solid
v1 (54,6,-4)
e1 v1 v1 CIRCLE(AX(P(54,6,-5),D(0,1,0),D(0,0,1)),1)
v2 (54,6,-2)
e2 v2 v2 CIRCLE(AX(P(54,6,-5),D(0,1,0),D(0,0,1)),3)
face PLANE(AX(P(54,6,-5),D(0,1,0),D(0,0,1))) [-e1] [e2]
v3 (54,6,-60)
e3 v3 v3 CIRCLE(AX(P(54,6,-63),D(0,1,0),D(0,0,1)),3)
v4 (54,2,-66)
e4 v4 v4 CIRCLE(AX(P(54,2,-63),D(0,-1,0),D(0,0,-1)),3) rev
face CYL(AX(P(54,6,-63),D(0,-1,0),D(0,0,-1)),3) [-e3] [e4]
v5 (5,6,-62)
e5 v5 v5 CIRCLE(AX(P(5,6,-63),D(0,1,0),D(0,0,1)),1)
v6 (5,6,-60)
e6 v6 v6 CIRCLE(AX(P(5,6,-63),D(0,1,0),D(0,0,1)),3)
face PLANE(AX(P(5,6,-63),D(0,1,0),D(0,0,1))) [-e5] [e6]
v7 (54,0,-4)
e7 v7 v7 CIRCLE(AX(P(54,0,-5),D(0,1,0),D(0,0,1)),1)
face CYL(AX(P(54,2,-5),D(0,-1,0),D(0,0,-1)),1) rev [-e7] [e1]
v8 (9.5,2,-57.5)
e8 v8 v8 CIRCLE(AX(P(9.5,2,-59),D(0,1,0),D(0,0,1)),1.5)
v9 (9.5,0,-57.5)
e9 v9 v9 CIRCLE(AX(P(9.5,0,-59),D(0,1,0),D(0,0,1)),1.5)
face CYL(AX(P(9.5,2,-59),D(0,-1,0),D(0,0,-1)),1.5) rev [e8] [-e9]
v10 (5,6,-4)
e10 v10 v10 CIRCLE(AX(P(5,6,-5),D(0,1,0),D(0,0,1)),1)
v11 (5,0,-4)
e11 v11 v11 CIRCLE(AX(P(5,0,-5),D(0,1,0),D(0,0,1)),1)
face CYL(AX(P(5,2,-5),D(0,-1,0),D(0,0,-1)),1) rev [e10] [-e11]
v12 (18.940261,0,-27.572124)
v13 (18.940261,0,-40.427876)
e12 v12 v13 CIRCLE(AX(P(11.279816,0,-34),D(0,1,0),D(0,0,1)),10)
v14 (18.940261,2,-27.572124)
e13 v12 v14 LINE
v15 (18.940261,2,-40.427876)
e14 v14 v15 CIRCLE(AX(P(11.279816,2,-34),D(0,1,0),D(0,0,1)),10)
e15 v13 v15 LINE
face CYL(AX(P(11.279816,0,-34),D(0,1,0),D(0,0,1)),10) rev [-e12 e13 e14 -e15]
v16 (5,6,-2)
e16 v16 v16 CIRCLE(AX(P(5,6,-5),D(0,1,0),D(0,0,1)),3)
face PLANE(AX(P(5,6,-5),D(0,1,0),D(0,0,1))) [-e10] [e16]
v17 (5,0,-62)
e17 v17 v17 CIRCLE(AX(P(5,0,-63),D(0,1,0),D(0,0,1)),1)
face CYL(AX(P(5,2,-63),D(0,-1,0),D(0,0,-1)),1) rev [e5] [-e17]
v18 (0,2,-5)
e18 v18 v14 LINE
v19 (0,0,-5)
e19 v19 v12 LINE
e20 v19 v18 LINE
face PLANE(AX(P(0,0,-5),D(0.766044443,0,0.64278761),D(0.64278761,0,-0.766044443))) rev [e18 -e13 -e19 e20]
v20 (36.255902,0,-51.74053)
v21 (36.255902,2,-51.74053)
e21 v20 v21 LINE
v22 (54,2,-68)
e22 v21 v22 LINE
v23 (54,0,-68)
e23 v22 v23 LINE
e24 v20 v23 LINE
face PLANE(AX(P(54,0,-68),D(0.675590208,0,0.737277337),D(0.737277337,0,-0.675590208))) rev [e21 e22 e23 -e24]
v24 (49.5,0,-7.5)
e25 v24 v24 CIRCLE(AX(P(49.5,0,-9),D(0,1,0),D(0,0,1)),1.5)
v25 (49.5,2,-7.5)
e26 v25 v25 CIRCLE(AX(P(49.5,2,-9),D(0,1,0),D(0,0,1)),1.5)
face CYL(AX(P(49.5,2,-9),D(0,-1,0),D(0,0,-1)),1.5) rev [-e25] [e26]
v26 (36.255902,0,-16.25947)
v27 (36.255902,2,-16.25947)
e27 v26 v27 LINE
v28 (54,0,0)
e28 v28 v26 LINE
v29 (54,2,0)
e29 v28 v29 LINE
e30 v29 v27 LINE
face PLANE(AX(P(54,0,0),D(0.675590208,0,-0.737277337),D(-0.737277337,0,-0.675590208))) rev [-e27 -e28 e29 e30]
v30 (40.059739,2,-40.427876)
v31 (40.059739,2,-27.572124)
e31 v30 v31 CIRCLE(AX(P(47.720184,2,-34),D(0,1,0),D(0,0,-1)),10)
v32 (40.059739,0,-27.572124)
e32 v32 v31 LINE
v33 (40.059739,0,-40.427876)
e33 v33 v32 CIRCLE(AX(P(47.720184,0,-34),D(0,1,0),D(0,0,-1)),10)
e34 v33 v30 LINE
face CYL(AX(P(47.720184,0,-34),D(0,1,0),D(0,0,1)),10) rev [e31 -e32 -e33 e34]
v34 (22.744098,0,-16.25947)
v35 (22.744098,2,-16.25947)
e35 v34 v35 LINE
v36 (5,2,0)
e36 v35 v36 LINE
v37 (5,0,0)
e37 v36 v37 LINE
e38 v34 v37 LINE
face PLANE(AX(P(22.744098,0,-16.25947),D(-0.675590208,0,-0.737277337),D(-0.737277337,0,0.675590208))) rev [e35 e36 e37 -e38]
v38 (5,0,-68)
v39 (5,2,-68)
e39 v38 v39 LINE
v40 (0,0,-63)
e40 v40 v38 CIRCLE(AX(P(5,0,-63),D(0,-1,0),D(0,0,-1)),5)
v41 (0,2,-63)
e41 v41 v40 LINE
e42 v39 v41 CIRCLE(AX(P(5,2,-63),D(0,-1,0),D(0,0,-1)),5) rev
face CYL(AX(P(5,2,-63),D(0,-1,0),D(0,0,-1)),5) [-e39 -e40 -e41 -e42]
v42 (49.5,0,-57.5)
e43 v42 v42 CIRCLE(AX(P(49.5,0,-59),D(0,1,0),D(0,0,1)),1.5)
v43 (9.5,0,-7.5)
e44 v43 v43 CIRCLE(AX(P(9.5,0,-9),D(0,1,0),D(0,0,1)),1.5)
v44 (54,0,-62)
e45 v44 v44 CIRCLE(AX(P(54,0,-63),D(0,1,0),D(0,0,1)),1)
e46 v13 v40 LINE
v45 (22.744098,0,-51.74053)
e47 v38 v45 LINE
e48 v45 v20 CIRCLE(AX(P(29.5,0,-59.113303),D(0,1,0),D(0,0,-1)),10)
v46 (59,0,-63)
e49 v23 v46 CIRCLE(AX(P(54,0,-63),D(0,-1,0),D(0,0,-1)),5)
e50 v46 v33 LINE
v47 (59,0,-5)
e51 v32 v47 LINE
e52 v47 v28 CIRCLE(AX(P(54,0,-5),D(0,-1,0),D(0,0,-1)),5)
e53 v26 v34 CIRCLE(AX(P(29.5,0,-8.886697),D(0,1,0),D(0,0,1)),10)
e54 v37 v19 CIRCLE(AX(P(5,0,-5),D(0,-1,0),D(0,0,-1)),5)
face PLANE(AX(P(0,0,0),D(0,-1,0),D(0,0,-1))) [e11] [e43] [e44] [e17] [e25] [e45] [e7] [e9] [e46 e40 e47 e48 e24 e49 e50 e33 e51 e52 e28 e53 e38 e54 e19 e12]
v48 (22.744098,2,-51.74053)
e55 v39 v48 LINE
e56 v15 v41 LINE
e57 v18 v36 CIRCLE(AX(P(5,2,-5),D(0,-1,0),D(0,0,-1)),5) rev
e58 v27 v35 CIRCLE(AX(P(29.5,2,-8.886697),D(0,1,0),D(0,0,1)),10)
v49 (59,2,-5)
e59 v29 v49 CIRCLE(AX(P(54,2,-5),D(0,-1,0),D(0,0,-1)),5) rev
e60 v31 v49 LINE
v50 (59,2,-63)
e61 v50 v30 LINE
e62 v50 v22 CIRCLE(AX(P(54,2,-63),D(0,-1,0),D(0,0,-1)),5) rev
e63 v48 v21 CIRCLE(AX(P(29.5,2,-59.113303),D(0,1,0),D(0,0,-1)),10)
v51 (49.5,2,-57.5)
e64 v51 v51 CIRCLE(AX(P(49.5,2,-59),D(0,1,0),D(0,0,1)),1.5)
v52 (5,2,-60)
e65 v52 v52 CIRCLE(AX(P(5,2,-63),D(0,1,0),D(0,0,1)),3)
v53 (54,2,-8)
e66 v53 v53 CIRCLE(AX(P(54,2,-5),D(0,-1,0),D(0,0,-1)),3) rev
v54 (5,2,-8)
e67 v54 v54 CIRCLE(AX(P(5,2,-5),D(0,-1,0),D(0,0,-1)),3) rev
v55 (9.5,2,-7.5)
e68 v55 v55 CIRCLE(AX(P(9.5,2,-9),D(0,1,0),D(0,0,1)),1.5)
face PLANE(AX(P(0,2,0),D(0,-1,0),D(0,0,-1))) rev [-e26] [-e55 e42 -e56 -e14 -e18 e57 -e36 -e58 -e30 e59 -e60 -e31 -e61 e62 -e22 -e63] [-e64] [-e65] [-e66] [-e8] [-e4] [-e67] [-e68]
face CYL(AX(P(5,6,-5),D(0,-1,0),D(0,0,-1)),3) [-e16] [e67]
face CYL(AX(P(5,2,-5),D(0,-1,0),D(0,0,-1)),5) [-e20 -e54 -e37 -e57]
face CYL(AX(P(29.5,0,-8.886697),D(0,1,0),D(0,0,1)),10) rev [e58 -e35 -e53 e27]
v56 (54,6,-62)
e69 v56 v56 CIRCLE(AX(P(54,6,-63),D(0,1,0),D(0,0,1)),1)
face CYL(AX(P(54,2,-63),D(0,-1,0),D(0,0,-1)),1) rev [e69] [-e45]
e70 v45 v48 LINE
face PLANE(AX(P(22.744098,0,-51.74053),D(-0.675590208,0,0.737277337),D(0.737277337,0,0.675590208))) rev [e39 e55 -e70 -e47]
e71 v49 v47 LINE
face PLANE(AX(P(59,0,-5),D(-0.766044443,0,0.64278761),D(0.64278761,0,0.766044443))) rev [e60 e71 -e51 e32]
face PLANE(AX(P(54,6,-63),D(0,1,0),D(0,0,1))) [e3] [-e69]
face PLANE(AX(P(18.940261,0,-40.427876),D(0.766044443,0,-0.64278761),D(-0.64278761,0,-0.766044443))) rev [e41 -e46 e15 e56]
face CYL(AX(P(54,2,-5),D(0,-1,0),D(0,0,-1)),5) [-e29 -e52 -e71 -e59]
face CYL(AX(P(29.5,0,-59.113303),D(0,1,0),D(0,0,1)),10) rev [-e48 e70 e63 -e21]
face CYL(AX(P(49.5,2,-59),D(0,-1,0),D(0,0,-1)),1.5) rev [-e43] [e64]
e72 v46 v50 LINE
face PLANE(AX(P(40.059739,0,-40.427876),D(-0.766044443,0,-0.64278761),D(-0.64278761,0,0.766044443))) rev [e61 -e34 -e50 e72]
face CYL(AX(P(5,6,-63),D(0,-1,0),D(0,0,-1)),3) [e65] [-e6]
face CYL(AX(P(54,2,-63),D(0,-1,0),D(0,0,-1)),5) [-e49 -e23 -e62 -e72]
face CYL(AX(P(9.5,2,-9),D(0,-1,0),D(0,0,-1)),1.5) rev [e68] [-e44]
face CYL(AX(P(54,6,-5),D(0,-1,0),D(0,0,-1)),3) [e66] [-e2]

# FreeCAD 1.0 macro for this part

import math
import FreeCAD as App
import Part
import Sketcher
from FreeCAD import Vector
Q = App.Units.Quantity


def edges_at(feature, points):
    """Names of the edges that pass closest to the given points."""
    edges = feature.Shape.Edges
    near = lambda p: min(range(len(edges)), key=lambda i: edges[i].distToShape(Part.Vertex(*p))[0])
    return sorted({f"Edge{near(p) + 1}" for p in points})


def add_polygon(sketch, points):
    """Adds a closed chain of lines whose ends are joined by coincident constraints."""
    first, n = sketch.GeometryCount, len(points)
    for a, b in zip(points, points[1:] + points[:1]):
        sketch.addGeometry(Part.LineSegment(App.Vector(*a, 0), App.Vector(*b, 0)), False)
    for i in range(n):
        sketch.addConstraint(Sketcher.Constraint("Coincident", first + i, 2, first + (i + 1) % n, 1))

doc = App.newDocument("Part")
body = doc.addObject("PartDesign::Body", "Body")

sketch1 = body.newObject("Sketcher::SketchObject", "Sketch")
sketch1.AttachmentSupport = (doc.getObject("XZ_Plane"), [""])
sketch1.MapMode = "FlatFace"
add_polygon(sketch1, [(0, -68), (0, 0), (59, 0), (59, -68)])
sketch1.addGeometry(Part.Circle(Vector(5, -5, 0), Vector(0, 0, 1), 1), False)
sketch1.addGeometry(Part.Circle(Vector(9.5, -9, 0), Vector(0, 0, 1), 1.5), False)
sketch1.addGeometry(Part.Circle(Vector(54, -5, 0), Vector(0, 0, 1), 1), False)
sketch1.addGeometry(Part.Circle(Vector(49.5, -9, 0), Vector(0, 0, 1), 1.5), False)
sketch1.addGeometry(Part.Circle(Vector(9.5, -59, 0), Vector(0, 0, 1), 1.5), False)
sketch1.addGeometry(Part.Circle(Vector(5, -63, 0), Vector(0, 0, 1), 1), False)
sketch1.addGeometry(Part.Circle(Vector(49.5, -59, 0), Vector(0, 0, 1), 1.5), False)
sketch1.addGeometry(Part.Circle(Vector(54, -63, 0), Vector(0, 0, 1), 1), False)
sketch1.addConstraint(Sketcher.Constraint("Vertical", 0))
sketch1.addConstraint(Sketcher.Constraint("Horizontal", 1))
sketch1.addConstraint(Sketcher.Constraint("Vertical", 2))
sketch1.addConstraint(Sketcher.Constraint("Horizontal", 3))
sketch1.addConstraint(Sketcher.Constraint("Coincident", 0, 2, -1, 1))
sketch1.addConstraint(Sketcher.Constraint("Equal", 4, 6))
sketch1.addConstraint(Sketcher.Constraint("Equal", 5, 7))
sketch1.addConstraint(Sketcher.Constraint("Equal", 7, 8))
sketch1.addConstraint(Sketcher.Constraint("Equal", 6, 9))
sketch1.addConstraint(Sketcher.Constraint("Equal", 8, 10))
sketch1.addConstraint(Sketcher.Constraint("Equal", 9, 11))
sketch1.addConstraint(Sketcher.Constraint("Horizontal", 4, 3, 6, 3))
sketch1.addConstraint(Sketcher.Constraint("Horizontal", 5, 3, 7, 3))
sketch1.addConstraint(Sketcher.Constraint("Horizontal", 8, 3, 10, 3))
sketch1.addConstraint(Sketcher.Constraint("Horizontal", 9, 3, 11, 3))
sketch1.addConstraint(Sketcher.Constraint("Vertical", 5, 3, 8, 3))
sketch1.addConstraint(Sketcher.Constraint("Vertical", 4, 3, 9, 3))
sketch1.addConstraint(Sketcher.Constraint("Vertical", 7, 3, 10, 3))
sketch1.addConstraint(Sketcher.Constraint("Vertical", 6, 3, 11, 3))
sketch1.addConstraint(Sketcher.Constraint("Diameter", 4, Q("2 mm")))
sketch1.addConstraint(Sketcher.Constraint("Diameter", 5, Q("3 mm")))
sketch1.addConstraint(Sketcher.Constraint("DistanceX", 1, 1, 1, 2, Q("59 mm")))
sketch1.addConstraint(Sketcher.Constraint("DistanceY", 0, 1, 0, 2, Q("68 mm")))
sketch1.addConstraint(Sketcher.Constraint("DistanceX", -1, 1, 4, 3, Q("5 mm")))
sketch1.addConstraint(Sketcher.Constraint("DistanceY", 4, 3, -1, 1, Q("5 mm")))
sketch1.addConstraint(Sketcher.Constraint("DistanceY", 5, 3, -1, 1, Q("9 mm")))
sketch1.addConstraint(Sketcher.Constraint("DistanceX", -1, 1, 6, 3, Q("54 mm")))
sketch1.addConstraint(Sketcher.Constraint("DistanceY", 8, 3, -1, 1, Q("59 mm")))
sketch1.addConstraint(Sketcher.Constraint("DistanceY", 9, 3, -1, 1, Q("63 mm")))
sketch1.addConstraint(Sketcher.Constraint("DistanceX", 5, 3, 7, 3, Q("40 mm")))
sketch1.addConstraint(Sketcher.Constraint("DistanceX", -1, 1, 5, 3, Q("9.5 mm")))
pad1 = body.newObject("PartDesign::Pad", "Pad")
pad1.Profile = sketch1
pad1.Length = 2
pad1.Reversed = True
doc.recompute()

fillet = body.newObject("PartDesign::Fillet", "Fillet")
fillet.Base = (pad1, edges_at(pad1, [
    (0, 1, -68),
    (59, 1, -68),
    (59, 1, 0),
    (0, 1, 0),
]))
fillet.Radius = 5

sketch2 = body.newObject("Sketcher::SketchObject", "Sketch001")
sketch2.AttachmentSupport = (doc.getObject("XZ_Plane"), [""])
sketch2.MapMode = "FlatFace"
sketch2.AttachmentOffset = App.Placement(Vector(0, 0, -2), App.Rotation())
sketch2.addGeometry(Part.LineSegment(Vector(0, -5, 0), Vector(19, -28, 0)), False)
sketch2.addGeometry(Part.ArcOfCircle(Part.Circle(Vector(11, -34, 0), Vector(0, 0, 1), 10), math.radians(-40), math.radians(40)), False)
sketch2.addGeometry(Part.LineSegment(Vector(19, -40, 0), Vector(0, -63, 0)), False)
sketch2.addGeometry(Part.LineSegment(Vector(0, -63, 0), Vector(0, -5, 0)), False)
sketch2.addGeometry(Part.LineSegment(Vector(54, 0, 0), Vector(36, -16, 0)), False)
sketch2.addGeometry(Part.ArcOfCircle(Part.Circle(Vector(30, -9, 0), Vector(0, 0, 1), 10), math.radians(-133), math.radians(-47)), False)
sketch2.addGeometry(Part.LineSegment(Vector(23, -16, 0), Vector(5, 0, 0)), False)
sketch2.addGeometry(Part.LineSegment(Vector(5, 0, 0), Vector(54, 0, 0)), False)
sketch2.addGeometry(Part.LineSegment(Vector(54, -68, 0), Vector(5, -68, 0)), False)
sketch2.addGeometry(Part.LineSegment(Vector(5, -68, 0), Vector(23, -52, 0)), False)
sketch2.addGeometry(Part.ArcOfCircle(Part.Circle(Vector(30, -59, 0), Vector(0, 0, 1), 10), math.radians(47), math.radians(133)), False)
sketch2.addGeometry(Part.LineSegment(Vector(36, -52, 0), Vector(54, -68, 0)), False)
sketch2.addGeometry(Part.LineSegment(Vector(59, -5, 0), Vector(59, -63, 0)), False)
sketch2.addGeometry(Part.LineSegment(Vector(59, -63, 0), Vector(40, -40, 0)), False)
sketch2.addGeometry(Part.ArcOfCircle(Part.Circle(Vector(48, -34, 0), Vector(0, 0, 1), 10), math.radians(140), math.radians(220)), False)
sketch2.addGeometry(Part.LineSegment(Vector(40, -28, 0), Vector(59, -5, 0)), False)
sketch2.addConstraint(Sketcher.Constraint("Tangent", 0, 2, 1, 2))
sketch2.addConstraint(Sketcher.Constraint("Tangent", 1, 1, 2, 1))
sketch2.addConstraint(Sketcher.Constraint("Coincident", 2, 2, 3, 1))
sketch2.addConstraint(Sketcher.Constraint("Coincident", 3, 2, 0, 1))
sketch2.addConstraint(Sketcher.Constraint("Tangent", 4, 2, 5, 2))
sketch2.addConstraint(Sketcher.Constraint("Tangent", 5, 1, 6, 1))
sketch2.addConstraint(Sketcher.Constraint("Coincident", 6, 2, 7, 1))
sketch2.addConstraint(Sketcher.Constraint("Coincident", 7, 2, 4, 1))
sketch2.addConstraint(Sketcher.Constraint("Coincident", 8, 2, 9, 1))
sketch2.addConstraint(Sketcher.Constraint("Tangent", 9, 2, 10, 2))
sketch2.addConstraint(Sketcher.Constraint("Tangent", 10, 1, 11, 1))
sketch2.addConstraint(Sketcher.Constraint("Coincident", 11, 2, 8, 1))
sketch2.addConstraint(Sketcher.Constraint("Coincident", 12, 2, 13, 1))
sketch2.addConstraint(Sketcher.Constraint("Tangent", 13, 2, 14, 2))
sketch2.addConstraint(Sketcher.Constraint("Tangent", 14, 1, 15, 1))
sketch2.addConstraint(Sketcher.Constraint("Coincident", 15, 2, 12, 1))
sketch2.addConstraint(Sketcher.Constraint("Vertical", 3))
sketch2.addConstraint(Sketcher.Constraint("Horizontal", 7))
sketch2.addConstraint(Sketcher.Constraint("Horizontal", 8))
sketch2.addConstraint(Sketcher.Constraint("Vertical", 12))
sketch2.addConstraint(Sketcher.Constraint("Equal", 1, 5))
sketch2.addConstraint(Sketcher.Constraint("Equal", 5, 10))
sketch2.addConstraint(Sketcher.Constraint("Equal", 10, 14))
sketch2.addConstraint(Sketcher.Constraint("PointOnObject", 2, 2, -2))
sketch2.addConstraint(Sketcher.Constraint("PointOnObject", 6, 2, -1))
sketch2.addConstraint(Sketcher.Constraint("Parallel", 4, 9))
sketch2.addConstraint(Sketcher.Constraint("Parallel", 6, 11))
sketch2.addConstraint(Sketcher.Constraint("Parallel", 0, 13))
sketch2.addConstraint(Sketcher.Constraint("Parallel", 2, 15))
sketch2.addConstraint(Sketcher.Constraint("Horizontal", 1, 3, 14, 3))
sketch2.addConstraint(Sketcher.Constraint("Horizontal", 4, 2, 5, 1))
sketch2.addConstraint(Sketcher.Constraint("Horizontal", 2, 2, 12, 2))
sketch2.addConstraint(Sketcher.Constraint("Horizontal", 1, 1, 13, 2))
sketch2.addConstraint(Sketcher.Constraint("Vertical", 5, 3, 10, 3))
sketch2.addConstraint(Sketcher.Constraint("Vertical", 6, 2, 8, 2))
sketch2.addConstraint(Sketcher.Constraint("Radius", 1, Q("10 mm")))
sketch2.addConstraint(Sketcher.Constraint("DistanceX", 7, 1, 7, 2, Q("49 mm")))
sketch2.addConstraint(Sketcher.Constraint("DistanceY", 3, 1, 3, 2, Q("58 mm")))
sketch2.addConstraint(Sketcher.Constraint("Angle", 0, Q("-50 deg")))
sketch2.addConstraint(Sketcher.Constraint("DistanceY", 1, 3, -1, 1, Q("34 mm")))
sketch2.addConstraint(Sketcher.Constraint("DistanceX", -1, 1, 6, 2, Q("5 mm")))
sketch2.addConstraint(Sketcher.Constraint("DistanceY", 8, 2, -1, 1, Q("68 mm")))
sketch2.addConstraint(Sketcher.Constraint("DistanceX", -1, 1, 12, 2, Q("59 mm")))
sketch2.addConstraint(Sketcher.Constraint("Angle", 4, Q("-137.5 deg")))
pocket1 = body.newObject("PartDesign::Pocket", "Pocket")
pocket1.Profile = sketch2
pocket1.Length = 2
pocket1.Reversed = True

sketch3 = body.newObject("Sketcher::SketchObject", "Sketch002")
sketch3.AttachmentSupport = (doc.getObject("XZ_Plane"), [""])
sketch3.MapMode = "FlatFace"
sketch3.AttachmentOffset = App.Placement(Vector(0, 0, -2), App.Rotation())
sketch3.addGeometry(Part.Circle(Vector(5, -63, 0), Vector(0, 0, 1), 3), False)
sketch3.addGeometry(Part.Circle(Vector(5, -63, 0), Vector(0, 0, 1), 1), False)
sketch3.addGeometry(Part.Circle(Vector(54, -63, 0), Vector(0, 0, 1), 3), False)
sketch3.addGeometry(Part.Circle(Vector(54, -63, 0), Vector(0, 0, 1), 1), False)
sketch3.addGeometry(Part.Circle(Vector(54, -5, 0), Vector(0, 0, 1), 3), False)
sketch3.addGeometry(Part.Circle(Vector(54, -5, 0), Vector(0, 0, 1), 1), False)
sketch3.addGeometry(Part.Circle(Vector(5, -5, 0), Vector(0, 0, 1), 3), False)
sketch3.addGeometry(Part.Circle(Vector(5, -5, 0), Vector(0, 0, 1), 1), False)
sketch3.addConstraint(Sketcher.Constraint("Coincident", 1, 3, 0, 3))
sketch3.addConstraint(Sketcher.Constraint("Coincident", 3, 3, 2, 3))
sketch3.addConstraint(Sketcher.Constraint("Coincident", 5, 3, 4, 3))
sketch3.addConstraint(Sketcher.Constraint("Coincident", 7, 3, 6, 3))
sketch3.addConstraint(Sketcher.Constraint("Equal", 0, 2))
sketch3.addConstraint(Sketcher.Constraint("Equal", 1, 3))
sketch3.addConstraint(Sketcher.Constraint("Equal", 2, 4))
sketch3.addConstraint(Sketcher.Constraint("Equal", 3, 5))
sketch3.addConstraint(Sketcher.Constraint("Equal", 4, 6))
sketch3.addConstraint(Sketcher.Constraint("Equal", 5, 7))
sketch3.addConstraint(Sketcher.Constraint("Horizontal", 1, 3, 2, 3))
sketch3.addConstraint(Sketcher.Constraint("Horizontal", 5, 3, 6, 3))
sketch3.addConstraint(Sketcher.Constraint("Vertical", 3, 3, 4, 3))
sketch3.addConstraint(Sketcher.Constraint("Vertical", 1, 3, 6, 3))
sketch3.addConstraint(Sketcher.Constraint("Diameter", 0, Q("6 mm")))
sketch3.addConstraint(Sketcher.Constraint("Diameter", 1, Q("2 mm")))
sketch3.addConstraint(Sketcher.Constraint("DistanceX", -1, 1, 0, 3, Q("5 mm")))
sketch3.addConstraint(Sketcher.Constraint("DistanceY", 0, 3, -1, 1, Q("63 mm")))
sketch3.addConstraint(Sketcher.Constraint("DistanceX", -1, 1, 2, 3, Q("54 mm")))
sketch3.addConstraint(Sketcher.Constraint("DistanceY", 4, 3, -1, 1, Q("5 mm")))
pad2 = body.newObject("PartDesign::Pad", "Pad001")
pad2.Profile = sketch3
pad2.Length = 4
pad2.Reversed = True

doc.recompute()
